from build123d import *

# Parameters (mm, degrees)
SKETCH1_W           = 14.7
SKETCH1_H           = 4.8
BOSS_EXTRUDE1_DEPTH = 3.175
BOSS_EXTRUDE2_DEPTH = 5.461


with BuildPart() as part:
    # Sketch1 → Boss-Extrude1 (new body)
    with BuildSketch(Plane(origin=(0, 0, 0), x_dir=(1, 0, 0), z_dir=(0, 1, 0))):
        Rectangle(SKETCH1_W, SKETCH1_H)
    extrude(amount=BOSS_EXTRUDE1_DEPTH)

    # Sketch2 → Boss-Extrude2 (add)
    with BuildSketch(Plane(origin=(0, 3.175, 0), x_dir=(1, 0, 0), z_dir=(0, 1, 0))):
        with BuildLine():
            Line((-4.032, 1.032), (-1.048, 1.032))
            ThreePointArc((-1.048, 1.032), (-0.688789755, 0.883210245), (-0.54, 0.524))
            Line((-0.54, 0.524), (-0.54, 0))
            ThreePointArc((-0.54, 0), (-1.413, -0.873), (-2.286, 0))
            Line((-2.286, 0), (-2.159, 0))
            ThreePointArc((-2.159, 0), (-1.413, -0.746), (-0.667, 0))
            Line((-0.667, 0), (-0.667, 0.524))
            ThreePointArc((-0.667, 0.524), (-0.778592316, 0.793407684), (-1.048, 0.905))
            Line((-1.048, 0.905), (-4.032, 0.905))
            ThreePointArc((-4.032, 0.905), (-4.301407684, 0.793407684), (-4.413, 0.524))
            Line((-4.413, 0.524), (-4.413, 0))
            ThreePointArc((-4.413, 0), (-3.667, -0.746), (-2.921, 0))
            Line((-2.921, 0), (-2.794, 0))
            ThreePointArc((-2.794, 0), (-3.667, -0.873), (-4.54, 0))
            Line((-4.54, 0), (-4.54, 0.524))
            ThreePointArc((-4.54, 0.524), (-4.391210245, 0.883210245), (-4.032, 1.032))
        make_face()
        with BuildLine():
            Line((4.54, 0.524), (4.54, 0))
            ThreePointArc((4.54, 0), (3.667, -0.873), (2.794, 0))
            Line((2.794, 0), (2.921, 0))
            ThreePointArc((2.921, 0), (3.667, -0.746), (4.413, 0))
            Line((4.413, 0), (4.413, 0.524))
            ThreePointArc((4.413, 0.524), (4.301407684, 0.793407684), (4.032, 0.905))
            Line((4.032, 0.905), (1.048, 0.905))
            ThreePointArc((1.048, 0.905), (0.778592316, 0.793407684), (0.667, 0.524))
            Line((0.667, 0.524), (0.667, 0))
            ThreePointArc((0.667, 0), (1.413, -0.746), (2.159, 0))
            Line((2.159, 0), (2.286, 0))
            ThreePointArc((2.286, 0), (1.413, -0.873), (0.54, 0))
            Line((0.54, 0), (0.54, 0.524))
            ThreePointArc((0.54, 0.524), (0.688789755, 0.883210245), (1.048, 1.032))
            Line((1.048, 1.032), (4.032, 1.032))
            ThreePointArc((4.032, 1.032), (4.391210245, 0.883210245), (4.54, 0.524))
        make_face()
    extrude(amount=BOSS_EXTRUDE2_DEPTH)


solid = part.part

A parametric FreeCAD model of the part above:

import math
import FreeCAD as App
import Part
import Sketcher
Q = App.Units.Quantity


def add_polygon(sketch, points):
    """Adds a closed chain of lines whose ends are joined by coincident constraints."""
    first, n = sketch.GeometryCount, len(points)
    for a, b in zip(points, points[1:] + points[:1]):
        sketch.addGeometry(Part.LineSegment(App.Vector(*a, 0), App.Vector(*b, 0)), False)
    for i in range(n):
        sketch.addConstraint(Sketcher.Constraint("Coincident", first + i, 2, first + (i + 1) % n, 1))

doc = App.newDocument("Part")
params = doc.addObject("Spreadsheet::Sheet", "Params")
for row, (alias, value) in enumerate([
    ("pad1_length", "0.125 in"),
    ("sketch2_radius", "0.02 in"),
    ("sketch2_radius2", "0.015 in"),
    ("pad2_length", "0.215 in"),
], start=1):
    params.set(f"A{row}", alias)
    params.set(f"B{row}", "=" + value)
    params.setAlias(f"B{row}", alias)

body = doc.addObject("PartDesign::Body", "Body")

sketch1 = body.newObject("Sketcher::SketchObject", "Sketch")
sketch1.AttachmentSupport = (doc.getObject("XZ_Plane"), [""])
sketch1.MapMode = "FlatFace"
add_polygon(sketch1, [(-7.3, -2.4), (-7.3, 2.4), (7.3, 2.4), (7.3, -2.4)])
sketch1.addConstraint([
    Sketcher.Constraint("Vertical", 0),
    Sketcher.Constraint("Horizontal", 1),
    Sketcher.Constraint("Vertical", 2),
    Sketcher.Constraint("Horizontal", 3),
    Sketcher.Constraint("Symmetric", 0, 2, 2, 2, -1, 1),
    Sketcher.Constraint("DistanceX", 1, 1, 1, 2, 14.7),
    Sketcher.Constraint("DistanceY", 0, 1, 0, 2, 4.8),
])
pad1 = body.newObject("PartDesign::Pad", "Pad")
pad1.Profile = sketch1
pad1.setExpression("Length", "Params.pad1_length")
pad1.Reversed = True

sketch2 = body.newObject("Sketcher::SketchObject", "Sketch001")
sketch2.AttachmentSupport = (doc.getObject("XZ_Plane"), [""])
sketch2.MapMode = "FlatFace"
sketch2.AttachmentOffset = App.Placement(App.Vector(0, 0, -0.125 * 25.4), App.Rotation())
sketch2.addGeometry([
    Part.LineSegment(App.Vector(-1.05, -1.03, 0), App.Vector(-4.03, -1.03, 0)),
    Part.ArcOfCircle(Part.Circle(App.Vector(-4.03, -0.52, 0), App.Vector(0, 0, 1), 0.51), math.radians(180), math.radians(270)),
    Part.LineSegment(App.Vector(-4.54, -0.52, 0), App.Vector(-4.54, 0, 0)),
    Part.ArcOfCircle(Part.Circle(App.Vector(-3.67, 0, 0), App.Vector(0, 0, 1), 0.87), math.radians(0), math.radians(180)),
    Part.LineSegment(App.Vector(-2.79, 0, 0), App.Vector(-2.92, 0, 0)),
    Part.ArcOfCircle(Part.Circle(App.Vector(-3.67, 0, 0), App.Vector(0, 0, 1), 0.75), math.radians(0), math.radians(180)),
    Part.LineSegment(App.Vector(-4.41, 0, 0), App.Vector(-4.41, -0.52, 0)),
    Part.ArcOfCircle(Part.Circle(App.Vector(-4.03, -0.52, 0), App.Vector(0, 0, 1), 0.38), math.radians(180), math.radians(270)),
    Part.LineSegment(App.Vector(-4.03, -0.91, 0), App.Vector(-1.05, -0.91, 0)),
    Part.ArcOfCircle(Part.Circle(App.Vector(-1.05, -0.52, 0), App.Vector(0, 0, 1), 0.38), math.radians(-90), math.radians(0)),
    Part.LineSegment(App.Vector(-0.67, -0.52, 0), App.Vector(-0.67, 0, 0)),
    Part.ArcOfCircle(Part.Circle(App.Vector(-1.41, 0, 0), App.Vector(0, 0, 1), 0.75), math.radians(0), math.radians(180)),
    Part.LineSegment(App.Vector(-2.16, 0, 0), App.Vector(-2.29, 0, 0)),
    Part.ArcOfCircle(Part.Circle(App.Vector(-1.41, 0, 0), App.Vector(0, 0, 1), 0.87), math.radians(0), math.radians(180)),
    Part.LineSegment(App.Vector(-0.54, 0, 0), App.Vector(-0.54, -0.52, 0)),
    Part.ArcOfCircle(Part.Circle(App.Vector(-1.05, -0.52, 0), App.Vector(0, 0, 1), 0.51), math.radians(-90), math.radians(0)),
    Part.LineSegment(App.Vector(4.54, 0, 0), App.Vector(4.54, -0.52, 0)),
    Part.ArcOfCircle(Part.Circle(App.Vector(4.03, -0.52, 0), App.Vector(0, 0, 1), 0.51), math.radians(-90), math.radians(0)),
    Part.LineSegment(App.Vector(4.03, -1.03, 0), App.Vector(1.05, -1.03, 0)),
    Part.ArcOfCircle(Part.Circle(App.Vector(1.05, -0.52, 0), App.Vector(0, 0, 1), 0.51), math.radians(180), math.radians(270)),
    Part.LineSegment(App.Vector(0.54, -0.52, 0), App.Vector(0.54, 0, 0)),
    Part.ArcOfCircle(Part.Circle(App.Vector(1.41, 0, 0), App.Vector(0, 0, 1), 0.87), math.radians(0), math.radians(180)),
    Part.LineSegment(App.Vector(2.29, 0, 0), App.Vector(2.16, 0, 0)),
    Part.ArcOfCircle(Part.Circle(App.Vector(1.41, 0, 0), App.Vector(0, 0, 1), 0.75), math.radians(0), math.radians(180)),
    Part.LineSegment(App.Vector(0.67, 0, 0), App.Vector(0.67, -0.52, 0)),
    Part.ArcOfCircle(Part.Circle(App.Vector(1.05, -0.52, 0), App.Vector(0, 0, 1), 0.38), math.radians(180), math.radians(270)),
    Part.LineSegment(App.Vector(1.05, -0.91, 0), App.Vector(4.03, -0.91, 0)),
    Part.ArcOfCircle(Part.Circle(App.Vector(4.03, -0.52, 0), App.Vector(0, 0, 1), 0.38), math.radians(-90), math.radians(0)),
    Part.LineSegment(App.Vector(4.41, -0.52, 0), App.Vector(4.41, 0, 0)),
    Part.ArcOfCircle(Part.Circle(App.Vector(3.67, 0, 0), App.Vector(0, 0, 1), 0.75), math.radians(0), math.radians(180)),
    Part.LineSegment(App.Vector(2.92, 0, 0), App.Vector(2.79, 0, 0)),
    Part.ArcOfCircle(Part.Circle(App.Vector(3.67, 0, 0), App.Vector(0, 0, 1), 0.87), math.radians(0), math.radians(180)),
], False)
sketch2.addConstraint([
    Sketcher.Constraint("Tangent", 0, 2, 1, 2),
    Sketcher.Constraint("Tangent", 1, 1, 2, 1),
    Sketcher.Constraint("Tangent", 2, 2, 3, 2),
    Sketcher.Constraint("Coincident", 3, 1, 4, 1),
    Sketcher.Constraint("Coincident", 4, 2, 5, 1),
    Sketcher.Constraint("Tangent", 5, 2, 6, 1),
    Sketcher.Constraint("Tangent", 6, 2, 7, 1),
    Sketcher.Constraint("Tangent", 7, 2, 8, 1),
    Sketcher.Constraint("Tangent", 8, 2, 9, 1),
    Sketcher.Constraint("Tangent", 9, 2, 10, 1),
    Sketcher.Constraint("Tangent", 10, 2, 11, 1),
    Sketcher.Constraint("Coincident", 11, 2, 12, 1),
    Sketcher.Constraint("Coincident", 12, 2, 13, 2),
    Sketcher.Constraint("Tangent", 13, 1, 14, 1),
    Sketcher.Constraint("Tangent", 14, 2, 15, 2),
    Sketcher.Constraint("Tangent", 15, 1, 0, 1),
    Sketcher.Constraint("Tangent", 16, 2, 17, 2),
    Sketcher.Constraint("Tangent", 17, 1, 18, 1),
    Sketcher.Constraint("Tangent", 18, 2, 19, 2),
    Sketcher.Constraint("Tangent", 19, 1, 20, 1),
    Sketcher.Constraint("Tangent", 20, 2, 21, 2),
    Sketcher.Constraint("Coincident", 21, 1, 22, 1),
    Sketcher.Constraint("Coincident", 22, 2, 23, 1),
    Sketcher.Constraint("Tangent", 23, 2, 24, 1),
    Sketcher.Constraint("Tangent", 24, 2, 25, 1),
    Sketcher.Constraint("Tangent", 25, 2, 26, 1),
    Sketcher.Constraint("Tangent", 26, 2, 27, 1),
    Sketcher.Constraint("Tangent", 27, 2, 28, 1),
    Sketcher.Constraint("Tangent", 28, 2, 29, 1),
    Sketcher.Constraint("Coincident", 29, 2, 30, 1),
    Sketcher.Constraint("Coincident", 30, 2, 31, 2),
    Sketcher.Constraint("Tangent", 31, 1, 16, 1),
    Sketcher.Constraint("Horizontal", 0),
    Sketcher.Constraint("Vertical", 2),
    Sketcher.Constraint("Horizontal", 4),
    Sketcher.Constraint("Vertical", 6),
    Sketcher.Constraint("Horizontal", 8),
    Sketcher.Constraint("Vertical", 10),
    Sketcher.Constraint("Horizontal", 12),
    Sketcher.Constraint("Vertical", 14),
    Sketcher.Constraint("Vertical", 16),
    Sketcher.Constraint("Horizontal", 18),
    Sketcher.Constraint("Vertical", 20),
    Sketcher.Constraint("Horizontal", 22),
    Sketcher.Constraint("Vertical", 24),
    Sketcher.Constraint("Horizontal", 26),
    Sketcher.Constraint("Vertical", 28),
    Sketcher.Constraint("Horizontal", 30),
    Sketcher.Constraint("Coincident", 5, 3, 3, 3),
    Sketcher.Constraint("Coincident", 7, 3, 1, 3),
    Sketcher.Constraint("Coincident", 13, 3, 11, 3),
    Sketcher.Constraint("Coincident", 15, 3, 9, 3),
    Sketcher.Constraint("Coincident", 23, 3, 21, 3),
    Sketcher.Constraint("Coincident", 25, 3, 19, 3),
    Sketcher.Constraint("Coincident", 27, 3, 17, 3),
    Sketcher.Constraint("Coincident", 31, 3, 29, 3),
    Sketcher.Constraint("Equal", 7, 9),
    Sketcher.Constraint("Equal", 5, 11),
    Sketcher.Constraint("Equal", 15, 17),
    Sketcher.Constraint("Equal", 17, 19),
    Sketcher.Constraint("Equal", 13, 21),
    Sketcher.Constraint("Equal", 11, 23),
    Sketcher.Constraint("Equal", 23, 29),
    Sketcher.Constraint("Symmetric", 11, 3, 21, 3, -1, 1),
    Sketcher.Constraint("Symmetric", 3, 3, 29, 3, -1, 1),
    Sketcher.Constraint("PointOnObject", 3, 3, -1),
    Sketcher.Constraint("PointOnObject", 11, 3, -1),
    Sketcher.Constraint("PointOnObject", 3, 1, -1),
    Sketcher.Constraint("PointOnObject", 11, 2, -1),
    Sketcher.Constraint("PointOnObject", 21, 1, -1),
    Sketcher.Constraint("PointOnObject", 29, 2, -1),
    Sketcher.Constraint("Horizontal", 15, 3, 17, 3),
    Sketcher.Constraint("Radius", 1, Q("0.02 in")),
    Sketcher.Constraint("Radius", 7, Q("0.015 in")),
    Sketcher.Constraint("DistanceX", 9, 3, 17, 3, Q("0.2 in")),
    Sketcher.Constraint("DistanceX", 3, 1, -1, 1, Q("0.11 in")),
    Sketcher.Constraint("Radius", 3, 0.873),
    Sketcher.Constraint("DistanceY", 2, 1, 2, 2, 0.524),
])
sketch2.setExpression("Constraints[72]", "Params.sketch2_radius")
sketch2.setExpression("Constraints[73]", "Params.sketch2_radius2")
pad2 = body.newObject("PartDesign::Pad", "Pad001")
pad2.Profile = sketch2
pad2.setExpression("Length", "Params.pad2_length")
pad2.Reversed = True

doc.recompute()
